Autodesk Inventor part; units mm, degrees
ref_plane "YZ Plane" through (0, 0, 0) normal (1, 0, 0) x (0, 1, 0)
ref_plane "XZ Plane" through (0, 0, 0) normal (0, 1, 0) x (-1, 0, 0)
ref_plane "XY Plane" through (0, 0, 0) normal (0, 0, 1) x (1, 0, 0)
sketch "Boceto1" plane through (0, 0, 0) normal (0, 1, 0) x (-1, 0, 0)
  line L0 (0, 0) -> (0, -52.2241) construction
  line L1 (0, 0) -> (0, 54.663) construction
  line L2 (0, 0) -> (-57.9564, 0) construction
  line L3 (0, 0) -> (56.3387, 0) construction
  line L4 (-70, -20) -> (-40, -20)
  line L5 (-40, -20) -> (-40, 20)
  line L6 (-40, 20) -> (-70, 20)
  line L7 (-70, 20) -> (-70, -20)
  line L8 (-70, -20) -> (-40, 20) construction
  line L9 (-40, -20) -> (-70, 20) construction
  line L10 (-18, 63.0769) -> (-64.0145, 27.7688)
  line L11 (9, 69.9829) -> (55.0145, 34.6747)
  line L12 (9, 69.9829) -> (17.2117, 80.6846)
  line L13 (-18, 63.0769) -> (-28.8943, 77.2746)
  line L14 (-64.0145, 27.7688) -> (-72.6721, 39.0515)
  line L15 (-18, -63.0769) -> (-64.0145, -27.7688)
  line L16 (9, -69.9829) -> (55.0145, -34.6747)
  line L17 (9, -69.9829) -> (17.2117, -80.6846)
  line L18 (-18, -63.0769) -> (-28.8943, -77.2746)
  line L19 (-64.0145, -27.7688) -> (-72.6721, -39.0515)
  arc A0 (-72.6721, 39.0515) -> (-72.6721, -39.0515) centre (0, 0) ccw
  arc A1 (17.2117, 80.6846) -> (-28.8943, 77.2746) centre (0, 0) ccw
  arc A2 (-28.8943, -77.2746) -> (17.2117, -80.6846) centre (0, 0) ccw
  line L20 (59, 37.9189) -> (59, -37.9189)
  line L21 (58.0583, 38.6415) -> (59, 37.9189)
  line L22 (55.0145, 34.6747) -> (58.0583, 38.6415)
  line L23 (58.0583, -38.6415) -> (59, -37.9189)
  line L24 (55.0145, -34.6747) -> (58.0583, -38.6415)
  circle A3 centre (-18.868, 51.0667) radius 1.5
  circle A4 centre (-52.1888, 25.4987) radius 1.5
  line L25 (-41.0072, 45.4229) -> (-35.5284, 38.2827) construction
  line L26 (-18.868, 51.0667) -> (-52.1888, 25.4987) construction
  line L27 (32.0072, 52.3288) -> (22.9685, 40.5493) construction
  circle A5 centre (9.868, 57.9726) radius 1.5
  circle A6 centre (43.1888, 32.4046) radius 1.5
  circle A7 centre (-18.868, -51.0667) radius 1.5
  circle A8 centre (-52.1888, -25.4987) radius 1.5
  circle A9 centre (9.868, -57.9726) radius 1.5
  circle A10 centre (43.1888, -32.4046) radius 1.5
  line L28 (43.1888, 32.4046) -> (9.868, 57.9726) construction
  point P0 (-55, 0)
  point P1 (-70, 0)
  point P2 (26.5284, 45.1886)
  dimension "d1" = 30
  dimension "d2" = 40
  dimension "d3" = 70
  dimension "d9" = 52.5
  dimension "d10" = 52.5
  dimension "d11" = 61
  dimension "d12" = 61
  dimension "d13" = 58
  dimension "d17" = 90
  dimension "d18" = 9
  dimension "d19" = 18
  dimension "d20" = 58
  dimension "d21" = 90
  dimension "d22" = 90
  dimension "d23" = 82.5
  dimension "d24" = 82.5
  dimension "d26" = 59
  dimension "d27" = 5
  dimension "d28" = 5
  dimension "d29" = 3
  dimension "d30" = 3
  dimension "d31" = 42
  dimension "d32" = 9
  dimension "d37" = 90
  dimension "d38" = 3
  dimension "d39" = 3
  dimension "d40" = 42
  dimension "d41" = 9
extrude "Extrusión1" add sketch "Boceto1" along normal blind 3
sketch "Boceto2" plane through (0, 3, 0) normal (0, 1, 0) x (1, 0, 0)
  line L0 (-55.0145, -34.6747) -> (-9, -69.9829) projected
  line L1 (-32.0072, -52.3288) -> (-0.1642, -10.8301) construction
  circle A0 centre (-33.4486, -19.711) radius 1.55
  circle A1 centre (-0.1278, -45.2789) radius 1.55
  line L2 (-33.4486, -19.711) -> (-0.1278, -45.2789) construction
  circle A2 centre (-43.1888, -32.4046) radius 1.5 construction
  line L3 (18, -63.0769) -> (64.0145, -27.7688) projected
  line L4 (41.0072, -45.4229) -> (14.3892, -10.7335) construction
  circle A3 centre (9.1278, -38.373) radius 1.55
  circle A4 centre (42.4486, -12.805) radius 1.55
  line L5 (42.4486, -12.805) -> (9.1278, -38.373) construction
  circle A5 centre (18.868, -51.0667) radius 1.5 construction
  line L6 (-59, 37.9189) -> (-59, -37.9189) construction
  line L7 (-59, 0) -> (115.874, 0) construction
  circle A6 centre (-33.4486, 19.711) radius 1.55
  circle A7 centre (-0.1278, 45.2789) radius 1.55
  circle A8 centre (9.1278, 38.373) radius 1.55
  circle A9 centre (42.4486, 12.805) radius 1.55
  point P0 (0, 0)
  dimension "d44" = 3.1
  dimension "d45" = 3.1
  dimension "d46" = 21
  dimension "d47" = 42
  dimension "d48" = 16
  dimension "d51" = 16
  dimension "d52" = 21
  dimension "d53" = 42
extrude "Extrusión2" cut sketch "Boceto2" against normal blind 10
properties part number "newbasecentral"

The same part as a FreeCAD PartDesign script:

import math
import FreeCAD as App
import Part
import Sketcher

V = App.Vector
Q = App.Units.Quantity

doc = App.newDocument("Part")
body = doc.addObject("PartDesign::Body", "Body")

sketch1 = body.newObject("Sketcher::SketchObject", "Sketch")
sketch1.AttachmentSupport = (doc.getObject("XZ_Plane"), [""])
sketch1.MapMode = "FlatFace"
sketch1.addGeometry([
    Part.LineSegment(V(28.9, 77.3, 0), V(18, 63.1, 0)),
    Part.LineSegment(V(18, 63.1, 0), V(64, 27.8, 0)),
    Part.LineSegment(V(64, 27.8, 0), V(72.7, 39.1, 0)),
    Part.ArcOfCircle(Part.Circle(V(0, 0, 0), V(0, 0, 1), 82.5), math.radians(-28), math.radians(28)),
    Part.LineSegment(V(72.7, -39.1, 0), V(64, -27.8, 0)),
    Part.LineSegment(V(64, -27.8, 0), V(18, -63.1, 0)),
    Part.LineSegment(V(18, -63.1, 0), V(28.9, -77.3, 0)),
    Part.ArcOfCircle(Part.Circle(V(0, 0, 0), V(0, 0, 1), 82.5), math.radians(-102), math.radians(-69)),
    Part.LineSegment(V(-17.2, -80.7, 0), V(-9, -70, 0)),
    Part.LineSegment(V(-9, -70, 0), V(-55, -34.7, 0)),
    Part.LineSegment(V(-55, -34.7, 0), V(-58.1, -38.6, 0)),
    Part.LineSegment(V(-58.1, -38.6, 0), V(-59, -37.9, 0)),
    Part.LineSegment(V(-59, -37.9, 0), V(-59, 37.9, 0)),
    Part.LineSegment(V(-59, 37.9, 0), V(-58.1, 38.6, 0)),
    Part.LineSegment(V(-58.1, 38.6, 0), V(-55, 34.7, 0)),
    Part.LineSegment(V(-55, 34.7, 0), V(-9, 70, 0)),
    Part.LineSegment(V(-9, 70, 0), V(-17.2, 80.7, 0)),
    Part.ArcOfCircle(Part.Circle(V(0, 0, 0), V(0, 0, 1), 82.5), math.radians(69), math.radians(102)),
    Part.Circle(V(18.9, -51.1, 0), V(0, 0, 1), 1.5),
    Part.Circle(V(52.2, -25.5, 0), V(0, 0, 1), 1.5),
    Part.LineSegment(V(40, -20, 0), V(70, -20, 0)),
    Part.LineSegment(V(70, -20, 0), V(70, 20, 0)),
    Part.LineSegment(V(70, 20, 0), V(40, 20, 0)),
    Part.LineSegment(V(40, 20, 0), V(40, -20, 0)),
    Part.Circle(V(-9.9, -58, 0), V(0, 0, 1), 1.5),
    Part.Circle(V(-43.2, -32.4, 0), V(0, 0, 1), 1.5),
    Part.Circle(V(52.2, 25.5, 0), V(0, 0, 1), 1.5),
    Part.Circle(V(18.9, 51.1, 0), V(0, 0, 1), 1.5),
    Part.Circle(V(-43.2, 32.4, 0), V(0, 0, 1), 1.5),
    Part.Circle(V(-9.9, 58, 0), V(0, 0, 1), 1.5),
], False)
sketch1.addConstraint([
    Sketcher.Constraint("Coincident", 0, 2, 1, 1),
    Sketcher.Constraint("Coincident", 1, 2, 2, 1),
    Sketcher.Constraint("Coincident", 2, 2, 3, 2),
    Sketcher.Constraint("Coincident", 3, 1, 4, 1),
    Sketcher.Constraint("Coincident", 4, 2, 5, 1),
    Sketcher.Constraint("Coincident", 5, 2, 6, 1),
    Sketcher.Constraint("Coincident", 6, 2, 7, 2),
    Sketcher.Constraint("Coincident", 7, 1, 8, 1),
    Sketcher.Constraint("Coincident", 8, 2, 9, 1),
    Sketcher.Constraint("Coincident", 9, 2, 10, 1),
    Sketcher.Constraint("Coincident", 10, 2, 11, 1),
    Sketcher.Constraint("Coincident", 11, 2, 12, 1),
    Sketcher.Constraint("Coincident", 12, 2, 13, 1),
    Sketcher.Constraint("Coincident", 13, 2, 14, 1),
    Sketcher.Constraint("Coincident", 14, 2, 15, 1),
    Sketcher.Constraint("Coincident", 15, 2, 16, 1),
    Sketcher.Constraint("Coincident", 16, 2, 17, 2),
    Sketcher.Constraint("Coincident", 17, 1, 0, 1),
    Sketcher.Constraint("Coincident", 20, 2, 21, 1),
    Sketcher.Constraint("Coincident", 21, 2, 22, 1),
    Sketcher.Constraint("Coincident", 22, 2, 23, 1),
    Sketcher.Constraint("Coincident", 23, 2, 20, 1),
    Sketcher.Constraint("Vertical", 12),
    Sketcher.Constraint("Horizontal", 20),
    Sketcher.Constraint("Vertical", 21),
    Sketcher.Constraint("Horizontal", 22),
    Sketcher.Constraint("Vertical", 23),
    Sketcher.Constraint("Coincident", 3, 3, -1, 1),
    Sketcher.Constraint("Coincident", 7, 3, -1, 1),
    Sketcher.Constraint("Coincident", 17, 3, -1, 1),
    Sketcher.Constraint("Equal", 3, 7),
    Sketcher.Constraint("Equal", 7, 17),
    Sketcher.Constraint("Equal", 18, 19),
    Sketcher.Constraint("Equal", 19, 24),
    Sketcher.Constraint("Equal", 24, 25),
    Sketcher.Constraint("Equal", 25, 26),
    Sketcher.Constraint("Equal", 26, 27),
    Sketcher.Constraint("Equal", 27, 28),
    Sketcher.Constraint("Equal", 28, 29),
    Sketcher.Constraint("Symmetric", 19, 3, 26, 3, -1),
    Sketcher.Constraint("Symmetric", 18, 3, 27, 3, -1),
    Sketcher.Constraint("Symmetric", 25, 3, 28, 3, -1),
    Sketcher.Constraint("Symmetric", 24, 3, 29, 3, -1),
    Sketcher.Constraint("Symmetric", 1, 2, 4, 2, -1),
    Sketcher.Constraint("Symmetric", 0, 2, 5, 2, -1),
    Sketcher.Constraint("Symmetric", 10, 2, 13, 2, -1),
    Sketcher.Constraint("Symmetric", 9, 2, 14, 2, -1),
    Sketcher.Constraint("Symmetric", 8, 2, 15, 2, -1),
    Sketcher.Constraint("Perpendicular", 0, 1),
    Sketcher.Constraint("Perpendicular", 1, 2),
    Sketcher.Constraint("Perpendicular", 4, 5),
    Sketcher.Constraint("Perpendicular", 5, 6),
    Sketcher.Constraint("Parallel", 2, 8),
    Sketcher.Constraint("Perpendicular", 8, 9),
    Sketcher.Constraint("Perpendicular", 9, 10),
    Sketcher.Constraint("Perpendicular", 10, 11),
    Sketcher.Constraint("Perpendicular", 6, 13),
    Sketcher.Constraint("Perpendicular", 15, 16),
    Sketcher.Constraint("Equal", 5, 9),
    Sketcher.Constraint("Diameter", 18, Q("3 mm")),
    Sketcher.Constraint("Radius", 3, Q("82.5 mm")),
    Sketcher.Constraint("DistanceX", 20, 1, 20, 2, Q("30 mm")),
    Sketcher.Constraint("DistanceY", 21, 1, 21, 2, Q("40 mm")),
    Sketcher.Constraint("Distance", 1, Q("58 mm")),
    Sketcher.Constraint("Distance", 10, Q("5 mm")),
    Sketcher.Constraint("DistanceX", -1, 1, 0, 2, Q("18 mm")),
    Sketcher.Constraint("DistanceX", 8, 2, -1, 1, Q("9 mm")),
    Sketcher.Constraint("DistanceX", 11, 2, -1, 1, Q("59 mm")),
    Sketcher.Constraint("DistanceX", -1, 1, 20, 2, Q("70 mm")),
    Sketcher.Constraint("Angle", 2, Q("52.4997 deg")),
    Sketcher.Constraint("DistanceY", 20, 2, -1, 1, Q("20 mm")),
    Sketcher.Constraint("DistanceY", 26, 3, 1, 2, Q("2.27 mm")),
    Sketcher.Constraint("DistanceY", 7, 1, 6, 2, Q("3.41 mm")),
    Sketcher.Constraint("DistanceY", 7, 1, 25, 3, Q("48.28 mm")),
    Sketcher.Constraint("DistanceY", 9, 2, 25, 3, Q("2.27 mm")),
    Sketcher.Constraint("DistanceX", -1, 1, 18, 3, Q("18.868 mm")),
    Sketcher.Constraint("DistanceX", 24, 3, -1, 1, Q("9.868 mm")),
    Sketcher.Constraint("DistanceY", 18, 3, 19, 3, Q("25.568 mm")),
    Sketcher.Constraint("DistanceY", 24, 3, 18, 3, Q("6.906 mm")),
    Sketcher.Constraint("DistanceX", 25, 3, 7, 1, Q("25.977 mm")),
    Sketcher.Constraint("DistanceX", -1, 1, 19, 3, Q("52.1888 mm")),
])
pad1 = body.newObject("PartDesign::Pad", "Pad")
pad1.Profile = sketch1
pad1.Length = 3
pad1.Reversed = True

sketch2 = body.newObject("Sketcher::SketchObject", "Sketch001")
sketch2.AttachmentSupport = (doc.getObject("XZ_Plane"), [""])
sketch2.MapMode = "FlatFace"
sketch2.AttachmentOffset = App.Placement(V(0, 0, -3), App.Rotation())
sketch2.addGeometry([
    Part.Circle(V(-33.4, 19.7, 0), V(0, 0, 1), 1.6),
    Part.Circle(V(-0.1, 45.3, 0), V(0, 0, 1), 1.6),
    Part.Circle(V(9.1, 38.4, 0), V(0, 0, 1), 1.6),
    Part.Circle(V(42.4, 12.8, 0), V(0, 0, 1), 1.6),
    Part.Circle(V(-33.4, -19.7, 0), V(0, 0, 1), 1.6),
    Part.Circle(V(-0.1, -45.3, 0), V(0, 0, 1), 1.6),
    Part.Circle(V(9.1, -38.4, 0), V(0, 0, 1), 1.6),
    Part.Circle(V(42.4, -12.8, 0), V(0, 0, 1), 1.6),
], False)
sketch2.addConstraint([
    Sketcher.Constraint("Equal", 0, 1),
    Sketcher.Constraint("Equal", 1, 2),
    Sketcher.Constraint("Equal", 2, 3),
    Sketcher.Constraint("Equal", 3, 4),
    Sketcher.Constraint("Equal", 4, 5),
    Sketcher.Constraint("Equal", 5, 6),
    Sketcher.Constraint("Equal", 6, 7),
    Sketcher.Constraint("Symmetric", 0, 3, 4, 3, -1),
    Sketcher.Constraint("Symmetric", 1, 3, 5, 3, -1),
    Sketcher.Constraint("Symmetric", 2, 3, 6, 3, -1),
    Sketcher.Constraint("Symmetric", 3, 3, 7, 3, -1),
    Sketcher.Constraint("Diameter", 0, Q("3.1 mm")),
    Sketcher.Constraint("DistanceY", 4, 3, 1, 3, Q("64.99 mm")),
    Sketcher.Constraint("DistanceY", 7, 3, 3, 3, Q("25.61 mm")),
    Sketcher.Constraint("DistanceY", -1, 1, 0, 3, Q("19.711 mm")),
    Sketcher.Constraint("DistanceY", -1, 1, 2, 3, Q("38.373 mm")),
    Sketcher.Constraint("DistanceX", 0, 3, -1, 1, Q("33.4486 mm")),
    Sketcher.Constraint("DistanceX", 1, 3, -1, 1, Q("0.1278 mm")),
    Sketcher.Constraint("DistanceX", -1, 1, 2, 3, Q("9.1278 mm")),
    Sketcher.Constraint("DistanceX", -1, 1, 3, 3, Q("42.4486 mm")),
])
pocket1 = body.newObject("PartDesign::Pocket", "Pocket")
pocket1.Profile = sketch2
pocket1.Length = 10
pocket1.Reversed = True

doc.recompute()
